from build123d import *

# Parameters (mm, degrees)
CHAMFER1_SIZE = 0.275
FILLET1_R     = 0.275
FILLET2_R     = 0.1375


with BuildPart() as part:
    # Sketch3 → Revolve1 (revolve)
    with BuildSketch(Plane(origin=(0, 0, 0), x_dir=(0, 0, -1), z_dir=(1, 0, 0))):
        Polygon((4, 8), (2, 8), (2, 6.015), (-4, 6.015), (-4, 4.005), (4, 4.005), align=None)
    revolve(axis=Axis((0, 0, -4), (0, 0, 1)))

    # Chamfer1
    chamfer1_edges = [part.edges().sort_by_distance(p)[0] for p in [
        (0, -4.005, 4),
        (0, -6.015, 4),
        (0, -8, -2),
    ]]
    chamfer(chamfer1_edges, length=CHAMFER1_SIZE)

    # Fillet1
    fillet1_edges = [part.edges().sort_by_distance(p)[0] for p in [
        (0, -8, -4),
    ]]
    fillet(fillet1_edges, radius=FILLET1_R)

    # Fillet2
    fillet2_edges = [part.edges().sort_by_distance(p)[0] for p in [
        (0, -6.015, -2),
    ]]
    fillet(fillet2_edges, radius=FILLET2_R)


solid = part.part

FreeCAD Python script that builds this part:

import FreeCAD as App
import Part
import Sketcher

V = App.Vector
Q = App.Units.Quantity


def edges_at(feature, points):
    """Names of the edges that pass closest to the given points."""
    edges = feature.Shape.Edges
    near = lambda p: min(range(len(edges)), key=lambda i: edges[i].distToShape(Part.Vertex(*p))[0])
    return sorted({f"Edge{near(p) + 1}" for p in points})


def add_polygon(sketch, points):
    """Adds a closed chain of lines whose ends are joined by coincident constraints."""
    first, n = sketch.GeometryCount, len(points)
    for a, b in zip(points, points[1:] + points[:1]):
        sketch.addGeometry(Part.LineSegment(App.Vector(*a, 0), App.Vector(*b, 0)), False)
    for i in range(n):
        sketch.addConstraint(Sketcher.Constraint("Coincident", first + i, 2, first + (i + 1) % n, 1))

doc = App.newDocument("Part")
params = doc.addObject("Spreadsheet::Sheet", "Params")
for row, (alias, value) in enumerate([
    ("sketch1_height", "2 mm"),
    ("sketch1_height2", "6 mm"),
    ("sketch1_width", "2.01 mm"),
    ("revolution_angle", "360 deg"),
    ("chamfer_size", "0.275 mm"),
    ("fillet_radius", "0.275 mm"),
    ("fillet2_radius", "0.1375 mm"),
], start=1):
    params.set(f"A{row}", alias)
    params.set(f"B{row}", "=" + value)
    params.setAlias(f"B{row}", alias)

body = doc.addObject("PartDesign::Body", "Body")

# Sketch on YZ plane
sketch1 = body.newObject("Sketcher::SketchObject", "Sketch")
sketch1.AttachmentSupport = (doc.getObject("YZ_Plane"), [""])
sketch1.MapMode = "FlatFace"
add_polygon(sketch1, [(8, -4), (8, -2), (6, -2), (6, 4), (4, 4), (4, -4)])  # lines 0-5
sketch1.addConstraint(Sketcher.Constraint("Vertical", 0))
sketch1.addConstraint(Sketcher.Constraint("Horizontal", 1))
sketch1.addConstraint(Sketcher.Constraint("Vertical", 2))
sketch1.addConstraint(Sketcher.Constraint("Horizontal", 3))
sketch1.addConstraint(Sketcher.Constraint("Vertical", 4))
sketch1.addConstraint(Sketcher.Constraint("Horizontal", 5))
sketch1.addConstraint(Sketcher.Constraint("DistanceY", 0, 1, 0, 2, Q("2 mm")))
sketch1.addConstraint(Sketcher.Constraint("DistanceY", 2, 1, 2, 2, Q("6 mm")))
sketch1.addConstraint(Sketcher.Constraint("DistanceX", -1, 1, 0, 2, Q("8 mm")))
sketch1.addConstraint(Sketcher.Constraint("DistanceY", 0, 2, -1, 1, Q("2 mm")))
sketch1.addConstraint(Sketcher.Constraint("DistanceX", 3, 2, 3, 1, Q("2.01 mm")))
sketch1.addConstraint(Sketcher.Constraint("DistanceX", 1, 2, 1, 1, Q("1.985 mm")))
sketch1.setExpression("Constraints[12]", "Params.sketch1_height")
sketch1.setExpression("Constraints[13]", "Params.sketch1_height2")
sketch1.setExpression("Constraints[16]", "Params.sketch1_width")
revolution = body.newObject("PartDesign::Revolution", "Revolution")
revolution.Profile = sketch1
revolution.ReferenceAxis = (sketch1, ["V_Axis"])
revolution.setExpression("Angle", "Params.revolution_angle")
doc.recompute()

chamfer = body.newObject("PartDesign::Chamfer", "Chamfer")
chamfer.Base = (revolution, edges_at(revolution, [(0, -4.005, 4), (0, -6.015, 4), (0, -8, -2)]))
chamfer.setExpression("Size", "Params.chamfer_size")
doc.recompute()

fillet = body.newObject("PartDesign::Fillet", "Fillet")
fillet.Base = (chamfer, edges_at(chamfer, [(0, -8, -4)]))
fillet.setExpression("Radius", "Params.fillet_radius")
doc.recompute()

fillet2 = body.newObject("PartDesign::Fillet", "Fillet001")
fillet2.Base = (fillet, edges_at(fillet, [(0, -6.015, -2)]))
fillet2.setExpression("Radius", "Params.fillet2_radius")

doc.recompute()
